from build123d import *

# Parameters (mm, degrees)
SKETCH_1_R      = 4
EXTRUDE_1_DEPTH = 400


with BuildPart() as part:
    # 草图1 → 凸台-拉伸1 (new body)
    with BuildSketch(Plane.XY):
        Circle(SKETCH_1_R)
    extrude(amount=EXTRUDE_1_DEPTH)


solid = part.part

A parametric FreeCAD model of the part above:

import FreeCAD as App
import Part
import Sketcher
Q = App.Units.Quantity

doc = App.newDocument("Part")
body = doc.addObject("PartDesign::Body", "Body")

sketch1 = doc.addObject("Sketcher::SketchObject", "Sketch")
body.addObject(sketch1)
sketch1.AttachmentSupport = (doc.XY_Plane, [""])
sketch1.MapMode = "FlatFace"
sketch1.addGeometry(Part.Circle(App.Vector(0, 0, 0), App.Vector(0, 0, 1), 4), False)
sketch1.addConstraint([
    Sketcher.Constraint("Coincident", 0, 3, -1, 1),
    Sketcher.Constraint("Diameter", 0, Q("8 mm")),
])
pad1 = doc.addObject("PartDesign::Pad", "Pad")
body.addObject(pad1)
pad1.Profile = sketch1
pad1.Length = 400

doc.recompute()
